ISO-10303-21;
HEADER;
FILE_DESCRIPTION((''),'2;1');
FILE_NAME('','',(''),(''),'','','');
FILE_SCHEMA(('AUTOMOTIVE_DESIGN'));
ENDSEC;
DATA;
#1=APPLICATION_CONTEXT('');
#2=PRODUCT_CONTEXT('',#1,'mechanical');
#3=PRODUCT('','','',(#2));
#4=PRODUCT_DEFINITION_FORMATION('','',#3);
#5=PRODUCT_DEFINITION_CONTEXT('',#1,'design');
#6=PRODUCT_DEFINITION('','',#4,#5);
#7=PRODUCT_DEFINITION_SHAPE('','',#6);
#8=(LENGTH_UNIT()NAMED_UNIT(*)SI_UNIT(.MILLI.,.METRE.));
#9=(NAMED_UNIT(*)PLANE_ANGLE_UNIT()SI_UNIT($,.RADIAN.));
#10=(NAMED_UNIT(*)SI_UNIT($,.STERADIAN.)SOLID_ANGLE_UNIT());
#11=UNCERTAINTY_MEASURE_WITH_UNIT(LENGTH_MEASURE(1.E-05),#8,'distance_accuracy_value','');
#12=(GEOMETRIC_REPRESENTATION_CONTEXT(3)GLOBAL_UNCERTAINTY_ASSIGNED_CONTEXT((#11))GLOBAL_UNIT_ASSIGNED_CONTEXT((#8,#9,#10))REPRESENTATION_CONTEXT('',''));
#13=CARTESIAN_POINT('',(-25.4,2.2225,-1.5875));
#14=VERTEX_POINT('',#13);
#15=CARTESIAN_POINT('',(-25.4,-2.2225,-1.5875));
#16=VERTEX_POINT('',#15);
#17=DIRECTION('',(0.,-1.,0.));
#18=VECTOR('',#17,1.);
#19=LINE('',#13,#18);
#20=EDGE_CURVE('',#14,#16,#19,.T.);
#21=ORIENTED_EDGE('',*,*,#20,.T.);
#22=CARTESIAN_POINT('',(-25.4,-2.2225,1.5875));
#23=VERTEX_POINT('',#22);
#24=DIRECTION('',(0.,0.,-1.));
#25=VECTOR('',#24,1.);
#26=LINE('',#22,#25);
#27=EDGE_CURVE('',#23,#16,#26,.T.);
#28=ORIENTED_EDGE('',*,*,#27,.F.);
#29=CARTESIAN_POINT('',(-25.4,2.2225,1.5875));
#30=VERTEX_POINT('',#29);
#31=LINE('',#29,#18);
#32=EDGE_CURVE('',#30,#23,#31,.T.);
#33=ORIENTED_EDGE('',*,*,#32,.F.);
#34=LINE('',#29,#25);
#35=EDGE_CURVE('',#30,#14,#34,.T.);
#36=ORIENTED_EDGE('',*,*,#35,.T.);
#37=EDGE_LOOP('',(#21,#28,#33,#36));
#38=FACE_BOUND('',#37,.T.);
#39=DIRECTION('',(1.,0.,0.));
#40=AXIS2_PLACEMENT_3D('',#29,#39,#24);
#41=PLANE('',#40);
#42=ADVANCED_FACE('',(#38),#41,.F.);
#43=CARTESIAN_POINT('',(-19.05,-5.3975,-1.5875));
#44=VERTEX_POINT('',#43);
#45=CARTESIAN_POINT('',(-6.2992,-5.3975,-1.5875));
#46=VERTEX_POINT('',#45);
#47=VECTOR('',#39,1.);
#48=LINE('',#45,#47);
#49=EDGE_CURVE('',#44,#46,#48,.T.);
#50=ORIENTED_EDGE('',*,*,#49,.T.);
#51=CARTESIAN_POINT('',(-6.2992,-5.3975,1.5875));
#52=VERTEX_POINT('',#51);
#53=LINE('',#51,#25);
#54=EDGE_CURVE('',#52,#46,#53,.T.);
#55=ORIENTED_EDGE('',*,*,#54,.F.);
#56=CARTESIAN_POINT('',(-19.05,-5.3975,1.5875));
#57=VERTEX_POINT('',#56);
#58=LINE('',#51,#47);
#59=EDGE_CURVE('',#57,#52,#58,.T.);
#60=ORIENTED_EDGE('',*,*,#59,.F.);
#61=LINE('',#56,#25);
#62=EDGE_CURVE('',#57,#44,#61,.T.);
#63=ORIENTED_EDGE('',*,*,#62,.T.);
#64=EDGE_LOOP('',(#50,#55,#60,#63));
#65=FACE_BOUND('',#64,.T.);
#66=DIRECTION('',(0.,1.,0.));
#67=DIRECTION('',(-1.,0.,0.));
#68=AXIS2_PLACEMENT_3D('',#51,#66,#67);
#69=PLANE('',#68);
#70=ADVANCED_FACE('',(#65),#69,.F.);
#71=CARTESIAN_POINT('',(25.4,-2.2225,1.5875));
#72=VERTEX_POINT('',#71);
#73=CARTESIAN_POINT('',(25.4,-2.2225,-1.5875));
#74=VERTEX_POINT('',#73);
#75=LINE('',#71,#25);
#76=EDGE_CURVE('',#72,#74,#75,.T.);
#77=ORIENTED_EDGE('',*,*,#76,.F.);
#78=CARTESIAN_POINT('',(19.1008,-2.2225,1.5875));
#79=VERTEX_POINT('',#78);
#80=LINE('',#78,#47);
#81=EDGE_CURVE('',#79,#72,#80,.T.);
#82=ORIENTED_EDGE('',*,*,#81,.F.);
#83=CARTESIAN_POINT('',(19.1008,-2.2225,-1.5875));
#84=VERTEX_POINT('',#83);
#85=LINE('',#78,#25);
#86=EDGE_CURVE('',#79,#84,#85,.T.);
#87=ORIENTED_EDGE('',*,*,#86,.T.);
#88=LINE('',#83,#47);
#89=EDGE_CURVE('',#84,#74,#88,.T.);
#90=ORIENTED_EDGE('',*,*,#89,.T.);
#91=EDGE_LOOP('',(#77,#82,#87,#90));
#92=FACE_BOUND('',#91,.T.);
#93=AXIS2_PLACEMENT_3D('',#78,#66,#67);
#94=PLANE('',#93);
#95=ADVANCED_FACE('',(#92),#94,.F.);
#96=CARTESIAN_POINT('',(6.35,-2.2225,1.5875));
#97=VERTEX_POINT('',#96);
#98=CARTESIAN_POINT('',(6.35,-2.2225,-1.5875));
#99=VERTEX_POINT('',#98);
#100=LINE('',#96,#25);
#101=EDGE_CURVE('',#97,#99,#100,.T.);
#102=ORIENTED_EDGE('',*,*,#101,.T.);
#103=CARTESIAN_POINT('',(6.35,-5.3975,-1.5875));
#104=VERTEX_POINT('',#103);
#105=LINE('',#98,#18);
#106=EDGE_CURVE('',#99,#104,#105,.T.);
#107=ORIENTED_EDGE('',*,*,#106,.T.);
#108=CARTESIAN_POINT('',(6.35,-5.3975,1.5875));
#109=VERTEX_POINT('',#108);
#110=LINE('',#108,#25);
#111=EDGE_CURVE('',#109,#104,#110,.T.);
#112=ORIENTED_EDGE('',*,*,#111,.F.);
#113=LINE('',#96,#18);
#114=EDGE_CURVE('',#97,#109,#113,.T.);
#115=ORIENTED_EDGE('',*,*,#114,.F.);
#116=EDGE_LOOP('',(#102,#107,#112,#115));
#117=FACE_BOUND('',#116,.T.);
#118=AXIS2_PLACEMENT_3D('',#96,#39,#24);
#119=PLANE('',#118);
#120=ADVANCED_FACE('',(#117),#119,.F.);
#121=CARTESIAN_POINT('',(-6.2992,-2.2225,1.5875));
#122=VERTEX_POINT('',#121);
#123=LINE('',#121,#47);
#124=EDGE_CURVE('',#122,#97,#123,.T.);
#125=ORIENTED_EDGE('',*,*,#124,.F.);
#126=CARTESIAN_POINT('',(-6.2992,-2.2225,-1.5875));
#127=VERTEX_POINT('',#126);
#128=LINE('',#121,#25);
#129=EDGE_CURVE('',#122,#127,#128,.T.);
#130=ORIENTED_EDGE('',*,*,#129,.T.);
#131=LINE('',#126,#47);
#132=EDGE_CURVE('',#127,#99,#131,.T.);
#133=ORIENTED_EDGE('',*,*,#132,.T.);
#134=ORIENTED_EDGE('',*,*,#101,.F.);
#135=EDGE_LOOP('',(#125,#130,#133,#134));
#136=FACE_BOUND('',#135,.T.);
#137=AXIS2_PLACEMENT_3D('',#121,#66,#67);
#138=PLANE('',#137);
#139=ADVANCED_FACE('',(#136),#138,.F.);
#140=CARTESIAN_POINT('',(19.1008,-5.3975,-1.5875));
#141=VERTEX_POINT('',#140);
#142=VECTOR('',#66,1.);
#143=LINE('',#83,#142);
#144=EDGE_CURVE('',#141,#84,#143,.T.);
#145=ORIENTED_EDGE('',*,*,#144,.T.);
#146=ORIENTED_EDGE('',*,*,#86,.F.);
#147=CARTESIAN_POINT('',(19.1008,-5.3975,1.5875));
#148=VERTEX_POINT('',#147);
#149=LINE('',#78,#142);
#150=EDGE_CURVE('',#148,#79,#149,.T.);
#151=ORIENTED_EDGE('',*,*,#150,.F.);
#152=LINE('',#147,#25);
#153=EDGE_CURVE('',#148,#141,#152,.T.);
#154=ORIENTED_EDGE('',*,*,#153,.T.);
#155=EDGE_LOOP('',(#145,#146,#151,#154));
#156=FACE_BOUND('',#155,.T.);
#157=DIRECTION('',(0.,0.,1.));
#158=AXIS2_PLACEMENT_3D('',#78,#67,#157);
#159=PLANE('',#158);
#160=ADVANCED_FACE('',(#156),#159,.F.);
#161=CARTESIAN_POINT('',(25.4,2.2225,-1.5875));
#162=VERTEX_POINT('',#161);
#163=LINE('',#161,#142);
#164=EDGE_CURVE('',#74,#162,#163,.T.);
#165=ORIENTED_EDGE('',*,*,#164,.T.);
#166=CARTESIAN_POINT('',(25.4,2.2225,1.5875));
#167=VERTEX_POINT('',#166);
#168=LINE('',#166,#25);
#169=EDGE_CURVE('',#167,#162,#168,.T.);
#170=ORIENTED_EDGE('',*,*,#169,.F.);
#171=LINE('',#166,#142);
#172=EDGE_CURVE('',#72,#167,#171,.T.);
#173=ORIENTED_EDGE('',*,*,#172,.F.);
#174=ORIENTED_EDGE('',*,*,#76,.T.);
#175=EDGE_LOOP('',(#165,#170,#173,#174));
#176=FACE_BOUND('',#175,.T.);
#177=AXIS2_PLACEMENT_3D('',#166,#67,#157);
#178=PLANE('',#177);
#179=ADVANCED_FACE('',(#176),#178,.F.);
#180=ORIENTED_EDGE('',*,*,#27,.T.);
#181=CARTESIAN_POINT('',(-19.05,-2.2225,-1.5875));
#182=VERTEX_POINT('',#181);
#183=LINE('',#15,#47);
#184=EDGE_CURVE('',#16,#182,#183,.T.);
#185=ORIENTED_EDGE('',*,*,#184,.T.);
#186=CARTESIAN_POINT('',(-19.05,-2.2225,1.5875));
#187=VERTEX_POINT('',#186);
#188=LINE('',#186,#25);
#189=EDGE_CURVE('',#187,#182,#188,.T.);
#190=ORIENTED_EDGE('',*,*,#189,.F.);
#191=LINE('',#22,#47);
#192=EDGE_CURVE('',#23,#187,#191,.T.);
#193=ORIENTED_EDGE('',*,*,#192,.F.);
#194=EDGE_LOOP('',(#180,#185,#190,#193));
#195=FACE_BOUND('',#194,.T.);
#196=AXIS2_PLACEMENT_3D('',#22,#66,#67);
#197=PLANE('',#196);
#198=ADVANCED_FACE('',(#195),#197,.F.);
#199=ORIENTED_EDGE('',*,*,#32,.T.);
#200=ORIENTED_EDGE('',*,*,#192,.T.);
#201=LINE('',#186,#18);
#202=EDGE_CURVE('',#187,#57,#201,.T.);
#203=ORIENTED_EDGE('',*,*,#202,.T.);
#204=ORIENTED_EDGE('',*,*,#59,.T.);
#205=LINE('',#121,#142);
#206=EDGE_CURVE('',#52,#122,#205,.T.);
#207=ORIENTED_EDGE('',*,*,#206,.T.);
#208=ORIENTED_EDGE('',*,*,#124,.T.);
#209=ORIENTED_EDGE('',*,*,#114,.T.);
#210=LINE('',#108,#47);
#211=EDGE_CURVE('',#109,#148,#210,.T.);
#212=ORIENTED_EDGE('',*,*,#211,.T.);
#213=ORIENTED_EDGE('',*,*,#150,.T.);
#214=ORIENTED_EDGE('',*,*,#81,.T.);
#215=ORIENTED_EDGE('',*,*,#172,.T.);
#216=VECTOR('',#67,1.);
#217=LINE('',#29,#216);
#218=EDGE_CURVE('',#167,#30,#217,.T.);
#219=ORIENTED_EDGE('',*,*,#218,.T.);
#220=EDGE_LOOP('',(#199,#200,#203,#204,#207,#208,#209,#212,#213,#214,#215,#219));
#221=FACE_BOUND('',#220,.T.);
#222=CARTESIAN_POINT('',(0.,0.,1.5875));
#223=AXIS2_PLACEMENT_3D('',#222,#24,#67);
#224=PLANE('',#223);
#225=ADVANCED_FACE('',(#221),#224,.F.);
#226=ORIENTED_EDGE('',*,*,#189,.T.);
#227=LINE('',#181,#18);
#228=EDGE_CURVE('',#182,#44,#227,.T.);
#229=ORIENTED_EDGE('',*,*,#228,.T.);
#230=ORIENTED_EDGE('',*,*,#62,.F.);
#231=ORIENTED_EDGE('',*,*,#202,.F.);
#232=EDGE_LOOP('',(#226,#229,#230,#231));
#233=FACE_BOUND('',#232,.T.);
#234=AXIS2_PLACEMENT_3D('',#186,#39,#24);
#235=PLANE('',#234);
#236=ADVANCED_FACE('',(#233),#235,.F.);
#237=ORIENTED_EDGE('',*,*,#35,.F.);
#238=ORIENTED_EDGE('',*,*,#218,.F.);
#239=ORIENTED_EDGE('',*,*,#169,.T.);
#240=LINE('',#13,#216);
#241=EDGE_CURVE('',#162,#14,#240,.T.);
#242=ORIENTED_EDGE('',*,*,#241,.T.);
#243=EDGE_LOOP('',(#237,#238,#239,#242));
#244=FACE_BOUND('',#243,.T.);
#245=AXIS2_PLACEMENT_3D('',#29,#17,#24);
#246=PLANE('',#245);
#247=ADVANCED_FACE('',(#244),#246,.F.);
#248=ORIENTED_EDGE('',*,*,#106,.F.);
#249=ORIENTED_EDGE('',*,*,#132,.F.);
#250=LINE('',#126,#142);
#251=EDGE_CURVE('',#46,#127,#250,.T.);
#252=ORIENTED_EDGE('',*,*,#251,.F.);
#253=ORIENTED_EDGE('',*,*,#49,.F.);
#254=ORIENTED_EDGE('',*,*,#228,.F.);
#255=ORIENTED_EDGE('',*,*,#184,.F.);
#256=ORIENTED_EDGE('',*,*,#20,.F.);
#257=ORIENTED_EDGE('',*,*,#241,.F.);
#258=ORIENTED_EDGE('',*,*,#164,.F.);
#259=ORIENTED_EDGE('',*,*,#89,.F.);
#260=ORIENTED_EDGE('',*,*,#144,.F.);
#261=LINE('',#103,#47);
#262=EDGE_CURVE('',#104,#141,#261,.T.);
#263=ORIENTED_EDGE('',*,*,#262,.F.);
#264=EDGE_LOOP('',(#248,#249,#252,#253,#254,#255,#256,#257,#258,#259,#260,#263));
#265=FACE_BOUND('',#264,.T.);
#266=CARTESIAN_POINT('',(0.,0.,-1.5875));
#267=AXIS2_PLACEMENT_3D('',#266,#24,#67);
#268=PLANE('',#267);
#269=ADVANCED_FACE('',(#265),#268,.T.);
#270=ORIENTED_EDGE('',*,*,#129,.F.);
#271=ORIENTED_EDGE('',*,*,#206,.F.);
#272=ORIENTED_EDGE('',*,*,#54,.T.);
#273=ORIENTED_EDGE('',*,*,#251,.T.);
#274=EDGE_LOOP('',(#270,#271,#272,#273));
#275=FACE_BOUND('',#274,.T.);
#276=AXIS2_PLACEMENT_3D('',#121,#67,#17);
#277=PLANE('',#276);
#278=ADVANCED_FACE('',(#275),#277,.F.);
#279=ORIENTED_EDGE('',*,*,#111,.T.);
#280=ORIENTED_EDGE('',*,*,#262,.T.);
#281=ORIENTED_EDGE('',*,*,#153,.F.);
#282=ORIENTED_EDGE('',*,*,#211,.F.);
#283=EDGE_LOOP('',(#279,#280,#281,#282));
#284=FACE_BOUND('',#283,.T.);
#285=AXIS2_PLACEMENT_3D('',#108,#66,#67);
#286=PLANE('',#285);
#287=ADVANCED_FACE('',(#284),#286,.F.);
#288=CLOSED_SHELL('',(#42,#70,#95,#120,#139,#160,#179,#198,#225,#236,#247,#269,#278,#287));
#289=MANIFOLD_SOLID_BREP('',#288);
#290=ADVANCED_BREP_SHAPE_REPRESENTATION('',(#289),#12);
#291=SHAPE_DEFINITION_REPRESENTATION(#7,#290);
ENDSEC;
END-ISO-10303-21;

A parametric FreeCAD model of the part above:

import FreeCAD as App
import Part
import Sketcher
Q = App.Units.Quantity


def add_polygon(sketch, points):
    """Adds a closed chain of lines whose ends are joined by coincident constraints."""
    first, n = sketch.GeometryCount, len(points)
    for a, b in zip(points, points[1:] + points[:1]):
        sketch.addGeometry(Part.LineSegment(App.Vector(*a, 0), App.Vector(*b, 0)), False)
    for i in range(n):
        sketch.addConstraint(Sketcher.Constraint("Coincident", first + i, 2, first + (i + 1) % n, 1))

doc = App.newDocument("Part")
body = doc.addObject("PartDesign::Body", "Body")

sketch1 = body.newObject("Sketcher::SketchObject", "Sketch")
sketch1.AttachmentSupport = (doc.getObject("XY_Plane"), [""])
sketch1.MapMode = "FlatFace"
add_polygon(sketch1, [(-6.2992, -2.2225), (6.35, -2.2225), (6.35, -5.3975), (19.1008, -5.3975), (19.1008, -2.2225), (25.4, -2.2225), (25.4, 2.2225), (-25.4, 2.2225), (-25.4, -2.2225), (-19.05, -2.2225), (-19.05, -5.3975), (-6.2992, -5.3975)])
sketch1.addConstraint(Sketcher.Constraint("Horizontal", 0))
sketch1.addConstraint(Sketcher.Constraint("Vertical", 1))
sketch1.addConstraint(Sketcher.Constraint("Horizontal", 2))
sketch1.addConstraint(Sketcher.Constraint("Vertical", 3))
sketch1.addConstraint(Sketcher.Constraint("Horizontal", 4))
sketch1.addConstraint(Sketcher.Constraint("Vertical", 5))
sketch1.addConstraint(Sketcher.Constraint("Horizontal", 6))
sketch1.addConstraint(Sketcher.Constraint("Vertical", 7))
sketch1.addConstraint(Sketcher.Constraint("Horizontal", 8))
sketch1.addConstraint(Sketcher.Constraint("Vertical", 9))
sketch1.addConstraint(Sketcher.Constraint("Horizontal", 10))
sketch1.addConstraint(Sketcher.Constraint("Vertical", 11))
sketch1.addConstraint(Sketcher.Constraint("Symmetric", 4, 2, 6, 2, -1, 1))
sketch1.addConstraint(Sketcher.Constraint("Horizontal", 0, 2, 3, 2))
sketch1.addConstraint(Sketcher.Constraint("Horizontal", 4, 2, 7, 2))
sketch1.addConstraint(Sketcher.Constraint("Horizontal", 2, 2, 9, 2))
sketch1.addConstraint(Sketcher.Constraint("Equal", 2, 10))
sketch1.addConstraint(Sketcher.Constraint("DistanceX", 6, 2, 6, 1, Q("2 in")))
sketch1.addConstraint(Sketcher.Constraint("DistanceX", 8, 2, 0, 2, Q("1 in")))
sketch1.addConstraint(Sketcher.Constraint("DistanceX", 8, 1, 8, 2, Q("0.25 in")))
sketch1.addConstraint(Sketcher.Constraint("DistanceY", 2, 2, 5, 2, Q("0.3 in")))
sketch1.addConstraint(Sketcher.Constraint("DistanceX", 0, 1, 0, 2, Q("0.498 in")))
sketch1.addConstraint(Sketcher.Constraint("DistanceY", 1, 2, 1, 1, Q("0.125 in")))
pad1 = body.newObject("PartDesign::Pad", "Pad")
pad1.Profile = sketch1
pad1.Length = Q("0.125 in")
pad1.Midplane = True

doc.recompute()
